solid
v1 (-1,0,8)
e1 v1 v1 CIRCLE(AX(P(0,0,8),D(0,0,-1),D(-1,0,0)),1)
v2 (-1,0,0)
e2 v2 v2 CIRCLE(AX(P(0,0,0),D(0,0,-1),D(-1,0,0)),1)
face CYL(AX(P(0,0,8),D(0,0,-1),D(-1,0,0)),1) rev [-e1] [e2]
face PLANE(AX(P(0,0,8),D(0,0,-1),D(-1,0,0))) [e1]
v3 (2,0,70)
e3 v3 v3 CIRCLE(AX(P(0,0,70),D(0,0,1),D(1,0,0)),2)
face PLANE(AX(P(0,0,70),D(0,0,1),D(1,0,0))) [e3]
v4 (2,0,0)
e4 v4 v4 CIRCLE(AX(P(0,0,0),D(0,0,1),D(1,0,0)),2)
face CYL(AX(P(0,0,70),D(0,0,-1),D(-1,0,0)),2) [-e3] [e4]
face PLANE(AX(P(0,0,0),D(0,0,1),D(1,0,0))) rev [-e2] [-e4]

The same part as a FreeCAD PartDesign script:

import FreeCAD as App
import Part
import Sketcher

doc = App.newDocument("Part")
body = doc.addObject("PartDesign::Body", "Body")

sketch1 = doc.addObject("Sketcher::SketchObject", "Sketch")
body.addObject(sketch1)
sketch1.AttachmentSupport = (doc.XY_Plane, [""])
sketch1.MapMode = "FlatFace"
sketch1.addGeometry(Part.Circle(App.Vector(0, 0, 0), App.Vector(0, 0, 1), 2), False)
sketch1.addConstraint(Sketcher.Constraint("Coincident", 0, 3, -1, 1))
sketch1.addConstraint(Sketcher.Constraint("Diameter", 0, 4.0))
pad1 = doc.addObject("PartDesign::Pad", "Pad")
body.addObject(pad1)
pad1.Profile = sketch1
pad1.Length = 70

sketch2 = doc.addObject("Sketcher::SketchObject", "Sketch001")
body.addObject(sketch2)
sketch2.AttachmentSupport = (doc.XY_Plane, [""])
sketch2.MapMode = "FlatFace"
sketch2.addGeometry(Part.Circle(App.Vector(0, 0, 0), App.Vector(0, 0, 1), 1), False)
sketch2.addConstraint(Sketcher.Constraint("Coincident", 0, 3, -1, 1))
sketch2.addConstraint(Sketcher.Constraint("Diameter", 0, 2.0))
pocket1 = doc.addObject("PartDesign::Pocket", "Pocket")
body.addObject(pocket1)
pocket1.Profile = sketch2
pocket1.Length = 8
pocket1.Reversed = True

doc.recompute()
